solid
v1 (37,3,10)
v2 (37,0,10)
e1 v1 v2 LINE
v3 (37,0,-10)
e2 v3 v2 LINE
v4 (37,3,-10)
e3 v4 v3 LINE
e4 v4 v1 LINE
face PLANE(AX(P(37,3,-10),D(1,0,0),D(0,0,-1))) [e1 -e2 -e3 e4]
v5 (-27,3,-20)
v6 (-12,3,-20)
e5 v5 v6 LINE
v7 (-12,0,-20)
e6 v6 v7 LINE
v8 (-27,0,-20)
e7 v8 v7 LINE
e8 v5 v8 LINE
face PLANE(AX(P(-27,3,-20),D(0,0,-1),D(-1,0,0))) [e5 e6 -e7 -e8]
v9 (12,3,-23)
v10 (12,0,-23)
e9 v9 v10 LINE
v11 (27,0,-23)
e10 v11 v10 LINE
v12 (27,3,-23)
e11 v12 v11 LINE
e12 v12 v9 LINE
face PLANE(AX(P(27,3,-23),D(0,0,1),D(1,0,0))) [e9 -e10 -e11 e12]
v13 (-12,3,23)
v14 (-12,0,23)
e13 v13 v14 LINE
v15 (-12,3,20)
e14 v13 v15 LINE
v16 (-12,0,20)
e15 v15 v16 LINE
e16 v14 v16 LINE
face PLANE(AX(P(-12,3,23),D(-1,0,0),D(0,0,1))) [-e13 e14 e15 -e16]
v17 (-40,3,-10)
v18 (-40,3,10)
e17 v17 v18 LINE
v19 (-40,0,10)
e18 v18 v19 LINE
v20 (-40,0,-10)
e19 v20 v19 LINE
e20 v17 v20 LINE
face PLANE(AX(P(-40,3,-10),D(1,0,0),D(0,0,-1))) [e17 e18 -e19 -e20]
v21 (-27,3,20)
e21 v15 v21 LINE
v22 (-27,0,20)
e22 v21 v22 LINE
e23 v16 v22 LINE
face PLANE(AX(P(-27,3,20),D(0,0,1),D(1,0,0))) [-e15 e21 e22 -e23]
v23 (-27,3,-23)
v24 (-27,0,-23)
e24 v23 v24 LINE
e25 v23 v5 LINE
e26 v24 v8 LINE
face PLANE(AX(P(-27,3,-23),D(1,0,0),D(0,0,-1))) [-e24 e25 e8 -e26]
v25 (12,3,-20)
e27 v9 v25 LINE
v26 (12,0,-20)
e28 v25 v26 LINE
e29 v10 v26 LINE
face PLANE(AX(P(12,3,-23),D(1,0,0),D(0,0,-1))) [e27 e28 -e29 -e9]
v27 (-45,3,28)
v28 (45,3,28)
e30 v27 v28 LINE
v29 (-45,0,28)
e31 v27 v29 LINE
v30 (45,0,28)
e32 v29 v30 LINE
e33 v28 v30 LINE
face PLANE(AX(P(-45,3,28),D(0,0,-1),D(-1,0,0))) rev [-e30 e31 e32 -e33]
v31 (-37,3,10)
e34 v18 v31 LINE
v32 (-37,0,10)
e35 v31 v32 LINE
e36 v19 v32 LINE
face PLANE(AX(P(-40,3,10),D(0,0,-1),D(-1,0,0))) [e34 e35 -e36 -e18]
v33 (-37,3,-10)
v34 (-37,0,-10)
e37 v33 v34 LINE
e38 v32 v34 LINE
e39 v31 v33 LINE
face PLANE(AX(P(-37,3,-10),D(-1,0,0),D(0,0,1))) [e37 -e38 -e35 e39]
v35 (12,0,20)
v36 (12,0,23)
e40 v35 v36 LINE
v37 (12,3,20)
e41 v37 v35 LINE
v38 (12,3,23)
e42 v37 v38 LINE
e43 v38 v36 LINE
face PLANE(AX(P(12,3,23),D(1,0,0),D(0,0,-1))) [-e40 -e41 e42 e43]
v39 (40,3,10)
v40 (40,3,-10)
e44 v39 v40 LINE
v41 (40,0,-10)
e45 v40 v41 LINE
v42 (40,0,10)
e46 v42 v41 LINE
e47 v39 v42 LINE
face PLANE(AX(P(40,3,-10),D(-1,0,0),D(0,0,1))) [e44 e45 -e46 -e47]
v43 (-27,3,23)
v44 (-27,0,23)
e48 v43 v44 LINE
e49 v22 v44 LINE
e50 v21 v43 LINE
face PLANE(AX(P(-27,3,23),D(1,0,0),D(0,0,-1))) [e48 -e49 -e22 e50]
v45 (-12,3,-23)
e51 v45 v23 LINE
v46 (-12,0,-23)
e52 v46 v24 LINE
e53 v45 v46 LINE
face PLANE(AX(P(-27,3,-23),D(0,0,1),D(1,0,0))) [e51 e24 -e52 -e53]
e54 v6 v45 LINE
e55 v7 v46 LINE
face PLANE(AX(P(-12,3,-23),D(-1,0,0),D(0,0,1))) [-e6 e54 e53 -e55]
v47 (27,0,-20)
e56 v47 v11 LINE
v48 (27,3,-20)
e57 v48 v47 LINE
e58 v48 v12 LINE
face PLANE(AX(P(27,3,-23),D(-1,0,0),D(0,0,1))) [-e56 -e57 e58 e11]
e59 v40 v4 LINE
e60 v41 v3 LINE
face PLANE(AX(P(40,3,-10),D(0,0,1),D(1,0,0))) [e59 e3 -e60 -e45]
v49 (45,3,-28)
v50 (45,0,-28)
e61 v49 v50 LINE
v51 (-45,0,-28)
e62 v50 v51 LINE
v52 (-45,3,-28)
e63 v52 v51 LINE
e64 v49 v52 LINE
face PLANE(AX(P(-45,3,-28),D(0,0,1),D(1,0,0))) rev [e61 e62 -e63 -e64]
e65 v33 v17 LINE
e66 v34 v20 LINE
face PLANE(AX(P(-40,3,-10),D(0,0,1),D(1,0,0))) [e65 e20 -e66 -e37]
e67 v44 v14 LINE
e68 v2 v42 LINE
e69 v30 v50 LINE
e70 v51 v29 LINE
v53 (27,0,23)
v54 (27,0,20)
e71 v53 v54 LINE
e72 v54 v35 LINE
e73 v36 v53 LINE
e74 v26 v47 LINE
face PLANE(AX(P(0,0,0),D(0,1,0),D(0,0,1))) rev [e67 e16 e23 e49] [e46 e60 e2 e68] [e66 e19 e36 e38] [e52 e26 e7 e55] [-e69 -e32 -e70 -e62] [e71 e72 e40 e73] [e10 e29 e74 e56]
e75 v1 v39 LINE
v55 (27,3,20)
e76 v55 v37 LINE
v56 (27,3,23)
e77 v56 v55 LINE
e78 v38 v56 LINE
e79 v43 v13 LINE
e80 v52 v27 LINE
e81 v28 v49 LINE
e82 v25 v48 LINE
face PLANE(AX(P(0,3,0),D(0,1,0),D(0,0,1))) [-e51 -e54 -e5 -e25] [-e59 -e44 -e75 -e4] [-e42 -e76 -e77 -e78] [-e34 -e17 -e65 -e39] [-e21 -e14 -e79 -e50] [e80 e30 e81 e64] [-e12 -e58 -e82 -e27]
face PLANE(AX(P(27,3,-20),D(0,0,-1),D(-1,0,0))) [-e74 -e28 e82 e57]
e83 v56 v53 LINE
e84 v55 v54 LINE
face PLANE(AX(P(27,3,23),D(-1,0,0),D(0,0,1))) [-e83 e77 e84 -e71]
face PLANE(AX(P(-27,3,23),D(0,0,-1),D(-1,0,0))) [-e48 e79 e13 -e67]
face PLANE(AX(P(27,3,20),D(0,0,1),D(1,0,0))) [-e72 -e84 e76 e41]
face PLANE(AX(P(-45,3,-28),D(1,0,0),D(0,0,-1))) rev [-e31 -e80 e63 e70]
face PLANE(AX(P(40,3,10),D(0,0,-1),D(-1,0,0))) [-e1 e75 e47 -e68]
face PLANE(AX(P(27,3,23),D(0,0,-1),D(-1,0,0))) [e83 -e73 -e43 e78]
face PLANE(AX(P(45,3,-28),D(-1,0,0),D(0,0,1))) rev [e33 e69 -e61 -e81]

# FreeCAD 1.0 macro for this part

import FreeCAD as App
import Part
import Sketcher

V = App.Vector
Q = App.Units.Quantity

doc = App.newDocument("Part")
params = doc.addObject("Spreadsheet::Sheet", "Params")
for row, (alias, value) in enumerate([
    ("sketch1_width", "90 mm"),
    ("sketch1_width2", "15 mm"),
    ("sketch1_width3", "3 mm"),
    ("sketch1_height", "56 mm"),
    ("sketch1_height2", "20 mm"),
    ("pad1_length", "3 mm"),
], start=1):
    params.set(f"A{row}", alias)
    params.set(f"B{row}", "=" + value)
    params.setAlias(f"B{row}", alias)

body = doc.addObject("PartDesign::Body", "Body")

sketch1 = body.newObject("Sketcher::SketchObject", "Sketch")
sketch1.AttachmentSupport = (doc.getObject("XZ_Plane"), [""])
sketch1.MapMode = "FlatFace"
sketch1.addGeometry([
    Part.LineSegment(V(-45, -28, 0), V(-45, 28, 0)),
    Part.LineSegment(V(-45, 28, 0), V(45, 28, 0)),
    Part.LineSegment(V(45, 28, 0), V(45, -28, 0)),
    Part.LineSegment(V(45, -28, 0), V(-45, -28, 0)),
    Part.LineSegment(V(-12, 23, 0), V(-27, 23, 0)),
    Part.LineSegment(V(-27, 23, 0), V(-27, 20, 0)),
    Part.LineSegment(V(-27, 20, 0), V(-12, 20, 0)),
    Part.LineSegment(V(-12, 20, 0), V(-12, 23, 0)),
    Part.LineSegment(V(27, 23, 0), V(12, 23, 0)),
    Part.LineSegment(V(12, 23, 0), V(12, 20, 0)),
    Part.LineSegment(V(12, 20, 0), V(27, 20, 0)),
    Part.LineSegment(V(27, 20, 0), V(27, 23, 0)),
    Part.LineSegment(V(-37, 10, 0), V(-40, 10, 0)),
    Part.LineSegment(V(-40, 10, 0), V(-40, -10, 0)),
    Part.LineSegment(V(-40, -10, 0), V(-37, -10, 0)),
    Part.LineSegment(V(-37, -10, 0), V(-37, 10, 0)),
    Part.LineSegment(V(-12, -20, 0), V(-27, -20, 0)),
    Part.LineSegment(V(-27, -20, 0), V(-27, -23, 0)),
    Part.LineSegment(V(-27, -23, 0), V(-12, -23, 0)),
    Part.LineSegment(V(-12, -23, 0), V(-12, -20, 0)),
    Part.LineSegment(V(40, 10, 0), V(37, 10, 0)),
    Part.LineSegment(V(37, 10, 0), V(37, -10, 0)),
    Part.LineSegment(V(37, -10, 0), V(40, -10, 0)),
    Part.LineSegment(V(40, -10, 0), V(40, 10, 0)),
    Part.LineSegment(V(27, -20, 0), V(12, -20, 0)),
    Part.LineSegment(V(12, -20, 0), V(12, -23, 0)),
    Part.LineSegment(V(12, -23, 0), V(27, -23, 0)),
    Part.LineSegment(V(27, -23, 0), V(27, -20, 0)),
], False)
sketch1.addConstraint([
    Sketcher.Constraint("Coincident", 0, 2, 1, 1),
    Sketcher.Constraint("Coincident", 1, 2, 2, 1),
    Sketcher.Constraint("Coincident", 2, 2, 3, 1),
    Sketcher.Constraint("Coincident", 3, 2, 0, 1),
    Sketcher.Constraint("Coincident", 4, 2, 5, 1),
    Sketcher.Constraint("Coincident", 5, 2, 6, 1),
    Sketcher.Constraint("Coincident", 6, 2, 7, 1),
    Sketcher.Constraint("Coincident", 7, 2, 4, 1),
    Sketcher.Constraint("Coincident", 8, 2, 9, 1),
    Sketcher.Constraint("Coincident", 9, 2, 10, 1),
    Sketcher.Constraint("Coincident", 10, 2, 11, 1),
    Sketcher.Constraint("Coincident", 11, 2, 8, 1),
    Sketcher.Constraint("Coincident", 12, 2, 13, 1),
    Sketcher.Constraint("Coincident", 13, 2, 14, 1),
    Sketcher.Constraint("Coincident", 14, 2, 15, 1),
    Sketcher.Constraint("Coincident", 15, 2, 12, 1),
    Sketcher.Constraint("Coincident", 16, 2, 17, 1),
    Sketcher.Constraint("Coincident", 17, 2, 18, 1),
    Sketcher.Constraint("Coincident", 18, 2, 19, 1),
    Sketcher.Constraint("Coincident", 19, 2, 16, 1),
    Sketcher.Constraint("Coincident", 20, 2, 21, 1),
    Sketcher.Constraint("Coincident", 21, 2, 22, 1),
    Sketcher.Constraint("Coincident", 22, 2, 23, 1),
    Sketcher.Constraint("Coincident", 23, 2, 20, 1),
    Sketcher.Constraint("Coincident", 24, 2, 25, 1),
    Sketcher.Constraint("Coincident", 25, 2, 26, 1),
    Sketcher.Constraint("Coincident", 26, 2, 27, 1),
    Sketcher.Constraint("Coincident", 27, 2, 24, 1),
    Sketcher.Constraint("Vertical", 0),
    Sketcher.Constraint("Horizontal", 1),
    Sketcher.Constraint("Vertical", 2),
    Sketcher.Constraint("Horizontal", 3),
    Sketcher.Constraint("Horizontal", 4),
    Sketcher.Constraint("Vertical", 5),
    Sketcher.Constraint("Horizontal", 6),
    Sketcher.Constraint("Vertical", 7),
    Sketcher.Constraint("Horizontal", 8),
    Sketcher.Constraint("Vertical", 9),
    Sketcher.Constraint("Horizontal", 10),
    Sketcher.Constraint("Vertical", 11),
    Sketcher.Constraint("Horizontal", 12),
    Sketcher.Constraint("Vertical", 13),
    Sketcher.Constraint("Horizontal", 14),
    Sketcher.Constraint("Vertical", 15),
    Sketcher.Constraint("Horizontal", 16),
    Sketcher.Constraint("Vertical", 17),
    Sketcher.Constraint("Horizontal", 18),
    Sketcher.Constraint("Vertical", 19),
    Sketcher.Constraint("Horizontal", 20),
    Sketcher.Constraint("Vertical", 21),
    Sketcher.Constraint("Horizontal", 22),
    Sketcher.Constraint("Vertical", 23),
    Sketcher.Constraint("Horizontal", 24),
    Sketcher.Constraint("Vertical", 25),
    Sketcher.Constraint("Horizontal", 26),
    Sketcher.Constraint("Vertical", 27),
    Sketcher.Constraint("Symmetric", 0, 2, 2, 2, -1, 1),
    Sketcher.Constraint("Symmetric", 10, 2, 16, 2, -1, 1),
    Sketcher.Constraint("Symmetric", 8, 2, 18, 2, -1, 1),
    Sketcher.Constraint("Symmetric", 14, 2, 20, 2, -1, 1),
    Sketcher.Constraint("Symmetric", 12, 2, 22, 2, -1, 1),
    Sketcher.Constraint("Symmetric", 6, 2, 24, 2, -1, 1),
    Sketcher.Constraint("Symmetric", 4, 2, 26, 2, -1, 1),
    Sketcher.Constraint("Symmetric", 7, 2, 8, 2, -2),
    Sketcher.Constraint("Symmetric", 5, 2, 10, 2, -2),
    Sketcher.Constraint("Horizontal", 15, 2, 20, 2),
    Sketcher.Constraint("Equal", 22, 5),
    Sketcher.Constraint("DistanceX", 1, 1, 1, 2, Q("90 mm")),
    Sketcher.Constraint("DistanceX", 4, 2, 4, 1, Q("15 mm")),
    Sketcher.Constraint("DistanceX", 12, 2, 12, 1, Q("3 mm")),
    Sketcher.Constraint("DistanceY", 0, 1, 0, 2, Q("56 mm")),
    Sketcher.Constraint("DistanceY", 13, 2, 13, 1, Q("20 mm")),
    Sketcher.Constraint("DistanceX", 4, 2, -1, 1, Q("27 mm")),
    Sketcher.Constraint("DistanceY", -1, 1, 4, 2, Q("23 mm")),
    Sketcher.Constraint("DistanceX", 12, 2, -1, 1, Q("40 mm")),
])
sketch1.setExpression("Constraints[67]", "Params.sketch1_width")
sketch1.setExpression("Constraints[68]", "Params.sketch1_width2")
sketch1.setExpression("Constraints[69]", "Params.sketch1_width3")
sketch1.setExpression("Constraints[70]", "Params.sketch1_height")
sketch1.setExpression("Constraints[71]", "Params.sketch1_height2")
pad1 = body.newObject("PartDesign::Pad", "Pad")
pad1.Profile = sketch1
pad1.setExpression("Length", "Params.pad1_length")
pad1.Reversed = True

doc.recompute()
